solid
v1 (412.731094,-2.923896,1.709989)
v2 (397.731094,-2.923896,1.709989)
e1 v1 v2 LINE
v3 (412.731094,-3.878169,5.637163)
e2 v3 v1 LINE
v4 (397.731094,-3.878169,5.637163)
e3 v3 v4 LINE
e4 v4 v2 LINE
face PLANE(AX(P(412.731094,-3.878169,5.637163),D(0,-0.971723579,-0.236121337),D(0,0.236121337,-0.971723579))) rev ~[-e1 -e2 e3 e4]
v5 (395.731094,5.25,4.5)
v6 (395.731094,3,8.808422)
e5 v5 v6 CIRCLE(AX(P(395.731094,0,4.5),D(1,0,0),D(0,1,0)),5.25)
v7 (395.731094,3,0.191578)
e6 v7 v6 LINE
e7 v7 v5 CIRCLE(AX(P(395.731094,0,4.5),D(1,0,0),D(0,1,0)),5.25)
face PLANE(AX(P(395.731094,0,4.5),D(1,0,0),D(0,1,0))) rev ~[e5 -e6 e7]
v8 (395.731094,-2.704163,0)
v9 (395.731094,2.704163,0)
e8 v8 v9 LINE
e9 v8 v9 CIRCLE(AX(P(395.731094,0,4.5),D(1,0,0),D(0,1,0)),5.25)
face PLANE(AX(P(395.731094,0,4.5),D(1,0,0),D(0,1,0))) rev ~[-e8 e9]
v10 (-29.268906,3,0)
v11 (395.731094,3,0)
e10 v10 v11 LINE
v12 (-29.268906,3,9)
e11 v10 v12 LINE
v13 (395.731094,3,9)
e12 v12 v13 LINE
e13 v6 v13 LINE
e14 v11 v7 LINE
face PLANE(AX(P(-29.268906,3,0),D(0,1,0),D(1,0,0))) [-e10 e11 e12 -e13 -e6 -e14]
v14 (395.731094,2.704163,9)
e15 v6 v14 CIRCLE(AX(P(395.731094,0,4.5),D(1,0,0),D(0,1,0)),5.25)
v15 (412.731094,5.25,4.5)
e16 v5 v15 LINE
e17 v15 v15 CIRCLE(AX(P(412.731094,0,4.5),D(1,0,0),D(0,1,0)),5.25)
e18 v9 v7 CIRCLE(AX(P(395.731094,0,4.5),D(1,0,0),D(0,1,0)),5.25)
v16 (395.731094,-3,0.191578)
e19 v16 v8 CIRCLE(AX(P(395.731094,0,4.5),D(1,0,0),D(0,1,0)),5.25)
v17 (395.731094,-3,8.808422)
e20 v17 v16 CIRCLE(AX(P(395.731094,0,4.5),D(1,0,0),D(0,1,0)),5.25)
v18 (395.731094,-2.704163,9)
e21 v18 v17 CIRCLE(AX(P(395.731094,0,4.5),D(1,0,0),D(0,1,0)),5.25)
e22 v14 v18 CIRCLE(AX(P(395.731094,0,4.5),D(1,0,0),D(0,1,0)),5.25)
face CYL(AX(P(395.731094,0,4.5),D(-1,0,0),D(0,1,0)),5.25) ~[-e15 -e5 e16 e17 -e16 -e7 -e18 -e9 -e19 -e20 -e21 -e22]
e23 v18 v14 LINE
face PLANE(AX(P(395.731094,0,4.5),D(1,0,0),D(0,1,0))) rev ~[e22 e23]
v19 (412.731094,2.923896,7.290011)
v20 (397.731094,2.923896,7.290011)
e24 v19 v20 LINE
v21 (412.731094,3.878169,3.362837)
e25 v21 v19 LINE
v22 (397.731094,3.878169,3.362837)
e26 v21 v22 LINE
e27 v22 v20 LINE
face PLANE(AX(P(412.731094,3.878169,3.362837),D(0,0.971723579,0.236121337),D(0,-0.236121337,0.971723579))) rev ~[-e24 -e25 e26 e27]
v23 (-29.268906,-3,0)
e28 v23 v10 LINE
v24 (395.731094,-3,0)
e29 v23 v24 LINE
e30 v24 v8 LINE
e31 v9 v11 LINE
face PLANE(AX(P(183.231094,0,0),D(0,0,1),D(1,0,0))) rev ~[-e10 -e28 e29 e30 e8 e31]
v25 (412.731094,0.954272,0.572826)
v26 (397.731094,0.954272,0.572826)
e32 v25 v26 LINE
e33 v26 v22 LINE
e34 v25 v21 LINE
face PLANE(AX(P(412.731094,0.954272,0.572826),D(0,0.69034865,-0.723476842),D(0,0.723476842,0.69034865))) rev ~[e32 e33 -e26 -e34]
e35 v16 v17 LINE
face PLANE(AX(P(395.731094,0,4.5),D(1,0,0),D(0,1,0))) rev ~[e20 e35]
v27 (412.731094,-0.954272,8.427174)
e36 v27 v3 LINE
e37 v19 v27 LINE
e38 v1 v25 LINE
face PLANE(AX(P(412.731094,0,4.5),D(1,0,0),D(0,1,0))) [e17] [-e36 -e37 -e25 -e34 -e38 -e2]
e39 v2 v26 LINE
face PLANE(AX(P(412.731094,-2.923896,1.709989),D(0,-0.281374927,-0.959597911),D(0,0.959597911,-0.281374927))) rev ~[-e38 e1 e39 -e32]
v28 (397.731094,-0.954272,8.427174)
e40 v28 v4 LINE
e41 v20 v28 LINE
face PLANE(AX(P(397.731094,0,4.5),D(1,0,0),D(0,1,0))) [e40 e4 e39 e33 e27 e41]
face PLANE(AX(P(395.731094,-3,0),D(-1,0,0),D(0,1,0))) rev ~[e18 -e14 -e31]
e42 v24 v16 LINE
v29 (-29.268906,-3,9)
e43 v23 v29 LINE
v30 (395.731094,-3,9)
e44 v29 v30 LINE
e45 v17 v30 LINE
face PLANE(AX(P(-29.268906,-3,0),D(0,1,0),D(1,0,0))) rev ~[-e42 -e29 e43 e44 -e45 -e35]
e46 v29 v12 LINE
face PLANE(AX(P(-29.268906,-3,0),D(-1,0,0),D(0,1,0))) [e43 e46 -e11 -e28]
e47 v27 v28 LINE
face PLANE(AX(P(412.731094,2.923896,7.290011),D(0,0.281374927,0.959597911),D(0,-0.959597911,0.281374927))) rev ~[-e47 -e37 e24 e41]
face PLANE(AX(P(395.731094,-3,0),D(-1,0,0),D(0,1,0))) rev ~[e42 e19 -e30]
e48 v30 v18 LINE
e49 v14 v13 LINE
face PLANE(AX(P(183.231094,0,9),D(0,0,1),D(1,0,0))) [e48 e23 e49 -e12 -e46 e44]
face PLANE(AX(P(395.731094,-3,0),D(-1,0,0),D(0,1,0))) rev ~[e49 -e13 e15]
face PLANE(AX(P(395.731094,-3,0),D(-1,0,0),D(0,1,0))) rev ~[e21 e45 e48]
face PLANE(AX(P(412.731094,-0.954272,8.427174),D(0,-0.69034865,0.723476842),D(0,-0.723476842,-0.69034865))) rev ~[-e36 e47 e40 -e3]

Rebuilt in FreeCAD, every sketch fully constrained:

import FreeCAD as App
import Part
import Sketcher

doc = App.newDocument("Part")
body = doc.addObject("PartDesign::Body", "Body")

sketch1 = body.newObject("Sketcher::SketchObject", "Sketch")
sketch1.AttachmentSupport = (doc.getObject("XY_Plane"), [""])
sketch1.MapMode = "FlatFace"
sketch1.addGeometry(Part.LineSegment(App.Vector(-29, 3, 0), App.Vector(-29, -3, 0)), False)
sketch1.addGeometry(Part.LineSegment(App.Vector(-29, -3, 0), App.Vector(396, -3, 0)), False)
sketch1.addGeometry(Part.LineSegment(App.Vector(396, -3, 0), App.Vector(396, 3, 0)), False)
sketch1.addGeometry(Part.LineSegment(App.Vector(396, 3, 0), App.Vector(-29, 3, 0)), False)
sketch1.addConstraint(Sketcher.Constraint("Coincident", 0, 2, 1, 1))
sketch1.addConstraint(Sketcher.Constraint("Coincident", 1, 2, 2, 1))
sketch1.addConstraint(Sketcher.Constraint("Coincident", 2, 2, 3, 1))
sketch1.addConstraint(Sketcher.Constraint("Coincident", 3, 2, 0, 1))
sketch1.addConstraint(Sketcher.Constraint("Vertical", 0))
sketch1.addConstraint(Sketcher.Constraint("Horizontal", 1))
sketch1.addConstraint(Sketcher.Constraint("Vertical", 2))
sketch1.addConstraint(Sketcher.Constraint("Horizontal", 3))
sketch1.addConstraint(Sketcher.Constraint("DistanceX", 1, 1, 1, 2, 425.0))
sketch1.addConstraint(Sketcher.Constraint("DistanceY", 0, 2, 0, 1, 6.0))
sketch1.addConstraint(Sketcher.Constraint("DistanceY", 0, 2, -1, 1, 3.0))
sketch1.addConstraint(Sketcher.Constraint("DistanceX", 0, 2, -1, 1, 29.268906))
pad1 = body.newObject("PartDesign::Pad", "Pad")
pad1.Profile = sketch1
pad1.Length = 9

sketch2 = body.newObject("Sketcher::SketchObject", "Sketch001")
sketch2.AttachmentSupport = (doc.getObject("YZ_Plane"), [""])
sketch2.MapMode = "FlatFace"
sketch2.AttachmentOffset = App.Placement(App.Vector(0, 0, 395.731094), App.Rotation())
sketch2.addGeometry(Part.Circle(App.Vector(0, 4, 0), App.Vector(0, 0, 1), 5), False)
sketch2.addConstraint(Sketcher.Constraint("PointOnObject", 0, 3, -2))
sketch2.addConstraint(Sketcher.Constraint("Diameter", 0, 10.5))
sketch2.addConstraint(Sketcher.Constraint("DistanceY", -1, 1, 0, 3, 4.5))
pad2 = body.newObject("PartDesign::Pad", "Pad001")
pad2.Profile = sketch2
pad2.Length = 17

sketch3 = body.newObject("Sketcher::SketchObject", "Sketch002")
sketch3.AttachmentSupport = (doc.getObject("YZ_Plane"), [""])
sketch3.MapMode = "FlatFace"
sketch3.AttachmentOffset = App.Placement(App.Vector(0, 0, 412.731094), App.Rotation())
sketch3.addGeometry(Part.LineSegment(App.Vector(1, 0.6, 0), App.Vector(3.9, 3.4, 0)), False)
sketch3.addGeometry(Part.LineSegment(App.Vector(3.9, 3.4, 0), App.Vector(2.9, 7.3, 0)), False)
sketch3.addGeometry(Part.LineSegment(App.Vector(2.9, 7.3, 0), App.Vector(-1, 8.4, 0)), False)
sketch3.addGeometry(Part.LineSegment(App.Vector(-1, 8.4, 0), App.Vector(-3.9, 5.6, 0)), False)
sketch3.addGeometry(Part.LineSegment(App.Vector(-3.9, 5.6, 0), App.Vector(-2.9, 1.7, 0)), False)
sketch3.addGeometry(Part.LineSegment(App.Vector(-2.9, 1.7, 0), App.Vector(1, 0.6, 0)), False)
sketch3.addConstraint(Sketcher.Constraint("Coincident", 0, 2, 1, 1))
sketch3.addConstraint(Sketcher.Constraint("Coincident", 1, 2, 2, 1))
sketch3.addConstraint(Sketcher.Constraint("Coincident", 2, 2, 3, 1))
sketch3.addConstraint(Sketcher.Constraint("Coincident", 3, 2, 4, 1))
sketch3.addConstraint(Sketcher.Constraint("Coincident", 4, 2, 5, 1))
sketch3.addConstraint(Sketcher.Constraint("Coincident", 5, 2, 0, 1))
sketch3.addConstraint(Sketcher.Constraint("Parallel", 0, 3))
sketch3.addConstraint(Sketcher.Constraint("Parallel", 1, 4))
sketch3.addConstraint(Sketcher.Constraint("Parallel", 2, 5))
sketch3.addConstraint(Sketcher.Constraint("Equal", 0, 1))
sketch3.addConstraint(Sketcher.Constraint("Equal", 1, 2))
sketch3.addConstraint(Sketcher.Constraint("Equal", 2, 3))
sketch3.addConstraint(Sketcher.Constraint("Distance", 1, 4.041452))
sketch3.addConstraint(Sketcher.Constraint("DistanceX", -1, 1, 0, 2, 3.878169))
sketch3.addConstraint(Sketcher.Constraint("DistanceY", -1, 1, 1, 2, 7.290011))
sketch3.addConstraint(Sketcher.Constraint("DistanceX", 3, 2, -1, 1, 3.878169))
sketch3.addConstraint(Sketcher.Constraint("DistanceY", -1, 1, 4, 2, 1.709989))
sketch3.addConstraint(Sketcher.Constraint("DistanceX", 2, 2, 1, 2, 3.878168))
pocket1 = body.newObject("PartDesign::Pocket", "Pocket")
pocket1.Profile = sketch3
pocket1.Length = 15

doc.recompute()
